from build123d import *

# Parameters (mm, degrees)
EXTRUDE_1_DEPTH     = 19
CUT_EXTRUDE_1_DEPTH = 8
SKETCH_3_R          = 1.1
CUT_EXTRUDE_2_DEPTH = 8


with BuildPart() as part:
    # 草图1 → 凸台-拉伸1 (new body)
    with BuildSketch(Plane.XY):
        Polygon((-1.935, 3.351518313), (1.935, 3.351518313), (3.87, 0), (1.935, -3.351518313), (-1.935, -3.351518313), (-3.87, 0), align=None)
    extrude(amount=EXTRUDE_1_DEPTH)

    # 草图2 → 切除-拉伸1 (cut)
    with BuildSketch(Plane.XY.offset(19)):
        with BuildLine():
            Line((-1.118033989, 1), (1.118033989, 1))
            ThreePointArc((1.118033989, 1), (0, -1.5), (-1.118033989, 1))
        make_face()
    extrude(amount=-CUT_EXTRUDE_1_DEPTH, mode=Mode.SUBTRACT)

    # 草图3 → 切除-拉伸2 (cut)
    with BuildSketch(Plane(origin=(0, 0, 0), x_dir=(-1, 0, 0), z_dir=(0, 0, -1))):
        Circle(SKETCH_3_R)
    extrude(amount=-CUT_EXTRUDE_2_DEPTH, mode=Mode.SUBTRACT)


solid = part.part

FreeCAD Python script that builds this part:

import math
import FreeCAD as App
import Part
import Sketcher
from FreeCAD import Vector
Q = App.Units.Quantity

doc = App.newDocument("Part")
params = doc.addObject("Spreadsheet::Sheet", "Params")
for row, (alias, value) in enumerate([
    ("sketch1_width", "3.87 mm"),
    ("sketch1_length", "3.87 mm"),
    ("pad1_length", "19 mm"),
    ("sketch2_radius", "1.5 mm"),
    ("pocket1_length", "8 mm"),
    ("sketch3_diameter", "2.2 mm"),
    ("pocket2_length", "8 mm"),
], start=1):
    params.set(f"A{row}", alias)
    params.set(f"B{row}", "=" + value)
    params.setAlias(f"B{row}", alias)

body = doc.addObject("PartDesign::Body", "Body")

sketch1 = body.newObject("Sketcher::SketchObject", "Sketch")
sketch1.AttachmentSupport = (doc.getObject("XY_Plane"), [""])
sketch1.MapMode = "FlatFace"
sketch1.addGeometry([
    Part.LineSegment(Vector(1.9, 3.4, 0), Vector(-1.9, 3.4, 0)),
    Part.LineSegment(Vector(-1.9, 3.4, 0), Vector(-3.9, 0, 0)),
    Part.LineSegment(Vector(-3.9, 0, 0), Vector(-1.9, -3.4, 0)),
    Part.LineSegment(Vector(-1.9, -3.4, 0), Vector(1.9, -3.4, 0)),
    Part.LineSegment(Vector(1.9, -3.4, 0), Vector(3.9, 0, 0)),
    Part.LineSegment(Vector(3.9, 0, 0), Vector(1.9, 3.4, 0)),
], False)
sketch1.addConstraint([
    Sketcher.Constraint("Coincident", 0, 2, 1, 1),
    Sketcher.Constraint("Coincident", 1, 2, 2, 1),
    Sketcher.Constraint("Coincident", 2, 2, 3, 1),
    Sketcher.Constraint("Coincident", 3, 2, 4, 1),
    Sketcher.Constraint("Coincident", 4, 2, 5, 1),
    Sketcher.Constraint("Coincident", 5, 2, 0, 1),
    Sketcher.Constraint("Horizontal", 0),
    Sketcher.Constraint("Horizontal", 3),
    Sketcher.Constraint("Symmetric", 0, 2, 3, 2, -1, 1),
    Sketcher.Constraint("Symmetric", 1, 2, 4, 2, -1, 1),
    Sketcher.Constraint("PointOnObject", 1, 2, -1),
    Sketcher.Constraint("Parallel", 2, 5),
    Sketcher.Constraint("Vertical", 0, 2, 2, 2),
    Sketcher.Constraint("Angle", 1, Q("-120 deg")),
    Sketcher.Constraint("DistanceX", 0, 2, 0, 1, 3.87),
    Sketcher.Constraint("Distance", 1, 3.87),
])
sketch1.setExpression("Constraints[14]", "Params.sketch1_width")
sketch1.setExpression("Constraints[15]", "Params.sketch1_length")
pad1 = body.newObject("PartDesign::Pad", "Pad")
pad1.Profile = sketch1
pad1.setExpression("Length", "Params.pad1_length")

sketch2 = body.newObject("Sketcher::SketchObject", "Sketch001")
sketch2.AttachmentSupport = (doc.getObject("XY_Plane"), [""])
sketch2.MapMode = "FlatFace"
sketch2.AttachmentOffset = App.Placement(Vector(0, 0, 19), App.Rotation())
sketch2.addGeometry([
    Part.LineSegment(Vector(1.1, 1, 0), Vector(-1.1, 1, 0)),
    Part.ArcOfCircle(Part.Circle(Vector(0, 0, 0), Vector(0, 0, 1), 1.5), math.radians(138), math.radians(402)),
], False)
sketch2.addConstraint([
    Sketcher.Constraint("Coincident", 0, 1, 1, 2),
    Sketcher.Constraint("Coincident", 1, 1, 0, 2),
    Sketcher.Constraint("Horizontal", 0),
    Sketcher.Constraint("Coincident", 1, 3, -1, 1),
    Sketcher.Constraint("Radius", 1, 1.5),
    Sketcher.Constraint("DistanceY", -1, 1, 0, 1, 1.0),
])
sketch2.setExpression("Constraints[4]", "Params.sketch2_radius")
pocket1 = body.newObject("PartDesign::Pocket", "Pocket")
pocket1.Profile = sketch2
pocket1.setExpression("Length", "Params.pocket1_length")

sketch3 = body.newObject("Sketcher::SketchObject", "Sketch002")
sketch3.AttachmentSupport = (doc.getObject("XY_Plane"), [""])
sketch3.MapMode = "FlatFace"
sketch3.addGeometry(Part.Circle(Vector(0, 0, 0), Vector(0, 0, 1), 1.1), False)
sketch3.addConstraint([
    Sketcher.Constraint("Coincident", 0, 3, -1, 1),
    Sketcher.Constraint("Diameter", 0, 2.2),
])
sketch3.setExpression("Constraints[1]", "Params.sketch3_diameter")
pocket2 = body.newObject("PartDesign::Pocket", "Pocket001")
pocket2.Profile = sketch3
pocket2.setExpression("Length", "Params.pocket2_length")
pocket2.Reversed = True

doc.recompute()
